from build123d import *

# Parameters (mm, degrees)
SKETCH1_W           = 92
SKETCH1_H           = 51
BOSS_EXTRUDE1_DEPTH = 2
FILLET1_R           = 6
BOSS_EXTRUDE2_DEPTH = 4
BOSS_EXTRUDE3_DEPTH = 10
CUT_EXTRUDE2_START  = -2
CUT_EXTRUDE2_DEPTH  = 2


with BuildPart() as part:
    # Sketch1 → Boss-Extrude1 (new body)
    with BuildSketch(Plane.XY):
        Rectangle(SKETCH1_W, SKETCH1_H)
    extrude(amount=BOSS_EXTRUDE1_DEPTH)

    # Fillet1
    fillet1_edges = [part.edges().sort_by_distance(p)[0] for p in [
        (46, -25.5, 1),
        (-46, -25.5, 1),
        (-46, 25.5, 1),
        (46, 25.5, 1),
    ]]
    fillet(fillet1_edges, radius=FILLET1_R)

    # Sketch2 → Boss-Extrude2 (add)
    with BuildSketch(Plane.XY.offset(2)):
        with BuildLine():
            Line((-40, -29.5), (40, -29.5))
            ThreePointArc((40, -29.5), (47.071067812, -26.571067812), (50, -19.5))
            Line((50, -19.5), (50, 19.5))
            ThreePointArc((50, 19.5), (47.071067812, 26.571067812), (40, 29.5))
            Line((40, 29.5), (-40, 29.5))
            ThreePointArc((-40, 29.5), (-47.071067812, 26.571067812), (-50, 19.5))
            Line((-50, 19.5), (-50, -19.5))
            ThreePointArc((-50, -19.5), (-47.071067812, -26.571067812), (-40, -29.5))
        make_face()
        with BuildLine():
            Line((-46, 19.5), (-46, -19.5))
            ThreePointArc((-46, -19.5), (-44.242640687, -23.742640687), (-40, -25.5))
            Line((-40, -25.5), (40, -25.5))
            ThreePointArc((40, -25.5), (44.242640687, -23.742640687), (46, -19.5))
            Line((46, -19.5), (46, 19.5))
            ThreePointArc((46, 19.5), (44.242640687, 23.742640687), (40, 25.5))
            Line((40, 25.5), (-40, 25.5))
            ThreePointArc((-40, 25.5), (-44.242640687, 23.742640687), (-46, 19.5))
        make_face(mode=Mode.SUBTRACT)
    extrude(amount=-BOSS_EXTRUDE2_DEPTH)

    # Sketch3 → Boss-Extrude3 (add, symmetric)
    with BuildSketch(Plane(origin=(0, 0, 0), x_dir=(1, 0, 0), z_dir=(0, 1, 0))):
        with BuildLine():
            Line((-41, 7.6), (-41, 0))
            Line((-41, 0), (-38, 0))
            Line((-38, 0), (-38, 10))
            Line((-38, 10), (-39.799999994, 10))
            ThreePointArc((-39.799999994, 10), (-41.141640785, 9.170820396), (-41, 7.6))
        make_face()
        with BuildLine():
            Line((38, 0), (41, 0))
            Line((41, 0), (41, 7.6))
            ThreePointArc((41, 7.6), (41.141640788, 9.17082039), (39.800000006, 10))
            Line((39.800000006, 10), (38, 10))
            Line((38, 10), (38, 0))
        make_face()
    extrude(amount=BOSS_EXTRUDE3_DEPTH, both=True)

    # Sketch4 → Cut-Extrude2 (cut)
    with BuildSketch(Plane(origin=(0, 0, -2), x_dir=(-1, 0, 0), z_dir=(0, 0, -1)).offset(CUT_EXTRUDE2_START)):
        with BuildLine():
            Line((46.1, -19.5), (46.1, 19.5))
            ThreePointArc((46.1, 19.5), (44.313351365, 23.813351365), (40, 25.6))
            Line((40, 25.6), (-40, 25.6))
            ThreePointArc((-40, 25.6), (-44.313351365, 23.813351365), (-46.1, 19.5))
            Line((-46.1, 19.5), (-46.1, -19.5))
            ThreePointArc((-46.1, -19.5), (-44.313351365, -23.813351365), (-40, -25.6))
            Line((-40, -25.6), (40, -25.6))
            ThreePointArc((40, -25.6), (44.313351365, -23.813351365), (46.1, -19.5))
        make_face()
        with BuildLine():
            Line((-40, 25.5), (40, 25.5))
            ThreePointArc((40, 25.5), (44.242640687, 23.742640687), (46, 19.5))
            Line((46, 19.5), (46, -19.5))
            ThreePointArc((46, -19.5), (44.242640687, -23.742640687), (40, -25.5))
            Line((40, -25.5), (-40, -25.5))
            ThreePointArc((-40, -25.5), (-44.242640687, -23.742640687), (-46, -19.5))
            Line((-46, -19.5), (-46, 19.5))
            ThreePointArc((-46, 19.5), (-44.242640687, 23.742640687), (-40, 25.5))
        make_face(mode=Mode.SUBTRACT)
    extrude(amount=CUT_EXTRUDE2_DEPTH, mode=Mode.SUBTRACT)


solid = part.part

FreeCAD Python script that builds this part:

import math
import FreeCAD as App
import Part
import Sketcher
from FreeCAD import Vector


def edges_at(feature, points):
    """Names of the edges that pass closest to the given points."""
    edges = feature.Shape.Edges
    near = lambda p: min(range(len(edges)), key=lambda i: edges[i].distToShape(Part.Vertex(*p))[0])
    return sorted({f"Edge{near(p) + 1}" for p in points})

doc = App.newDocument("Part")
body = doc.addObject("PartDesign::Body", "Body")

# Sketch on XY plane
sketch1 = body.newObject("Sketcher::SketchObject", "Sketch")
sketch1.AttachmentSupport = (doc.getObject("XY_Plane"), [""])
sketch1.MapMode = "FlatFace"
sketch1.addGeometry(Part.LineSegment(Vector(-46, 26, 0), Vector(-46, -26, 0)), False)
sketch1.addGeometry(Part.LineSegment(Vector(-46, -26, 0), Vector(46, -26, 0)), False)
sketch1.addGeometry(Part.LineSegment(Vector(46, -26, 0), Vector(46, 26, 0)), False)
sketch1.addGeometry(Part.LineSegment(Vector(46, 26, 0), Vector(-46, 26, 0)), False)
sketch1.addConstraint(Sketcher.Constraint("Coincident", 0, 2, 1, 1))
sketch1.addConstraint(Sketcher.Constraint("Coincident", 1, 2, 2, 1))
sketch1.addConstraint(Sketcher.Constraint("Coincident", 2, 2, 3, 1))
sketch1.addConstraint(Sketcher.Constraint("Coincident", 3, 2, 0, 1))
sketch1.addConstraint(Sketcher.Constraint("Vertical", 0))
sketch1.addConstraint(Sketcher.Constraint("Horizontal", 1))
sketch1.addConstraint(Sketcher.Constraint("Vertical", 2))
sketch1.addConstraint(Sketcher.Constraint("Horizontal", 3))
sketch1.addConstraint(Sketcher.Constraint("Symmetric", 0, 2, 2, 2, -1, 1))
sketch1.addConstraint(Sketcher.Constraint("DistanceX", 1, 1, 1, 2, 92.0))
sketch1.addConstraint(Sketcher.Constraint("DistanceY", 0, 2, 0, 1, 51.0))
pad1 = body.newObject("PartDesign::Pad", "Pad")
pad1.Profile = sketch1
pad1.Length = 2
doc.recompute()

fillet = body.newObject("PartDesign::Fillet", "Fillet")
fillet.Base = (pad1, edges_at(pad1, [
    (46, -25.5, 1),
    (-46, -25.5, 1),
    (-46, 25.5, 1),
    (46, 25.5, 1),
]))
fillet.Radius = 6

# Sketch on XY plane
sketch2 = body.newObject("Sketcher::SketchObject", "Sketch001")
sketch2.AttachmentSupport = (doc.getObject("XY_Plane"), [""])
sketch2.MapMode = "FlatFace"
sketch2.AttachmentOffset = App.Placement(Vector(0, 0, 2), App.Rotation())
sketch2.addGeometry(Part.LineSegment(Vector(-40, -30, 0), Vector(40, -30, 0)), False)
sketch2.addGeometry(Part.ArcOfCircle(Part.Circle(Vector(40, -20, 0), Vector(0, 0, 1), 10), math.radians(-90), math.radians(0)), False)
sketch2.addGeometry(Part.LineSegment(Vector(50, -20, 0), Vector(50, 20, 0)), False)
sketch2.addGeometry(Part.ArcOfCircle(Part.Circle(Vector(40, 20, 0), Vector(0, 0, 1), 10), math.radians(0), math.radians(90)), False)
sketch2.addGeometry(Part.LineSegment(Vector(40, 30, 0), Vector(-40, 30, 0)), False)
sketch2.addGeometry(Part.ArcOfCircle(Part.Circle(Vector(-40, 20, 0), Vector(0, 0, 1), 10), math.radians(90), math.radians(180)), False)
sketch2.addGeometry(Part.LineSegment(Vector(-50, 20, 0), Vector(-50, -20, 0)), False)
sketch2.addGeometry(Part.ArcOfCircle(Part.Circle(Vector(-40, -20, 0), Vector(0, 0, 1), 10), math.radians(180), math.radians(270)), False)
sketch2.addGeometry(Part.LineSegment(Vector(-46, -20, 0), Vector(-46, 20, 0)), False)
sketch2.addGeometry(Part.ArcOfCircle(Part.Circle(Vector(-40, 20, 0), Vector(0, 0, 1), 6), math.radians(90), math.radians(180)), False)
sketch2.addGeometry(Part.LineSegment(Vector(-40, 26, 0), Vector(40, 26, 0)), False)
sketch2.addGeometry(Part.ArcOfCircle(Part.Circle(Vector(40, 20, 0), Vector(0, 0, 1), 6), math.radians(0), math.radians(90)), False)
sketch2.addGeometry(Part.LineSegment(Vector(46, 20, 0), Vector(46, -20, 0)), False)
sketch2.addGeometry(Part.ArcOfCircle(Part.Circle(Vector(40, -20, 0), Vector(0, 0, 1), 6), math.radians(-90), math.radians(0)), False)
sketch2.addGeometry(Part.LineSegment(Vector(40, -26, 0), Vector(-40, -26, 0)), False)
sketch2.addGeometry(Part.ArcOfCircle(Part.Circle(Vector(-40, -20, 0), Vector(0, 0, 1), 6), math.radians(180), math.radians(270)), False)
sketch2.addConstraint(Sketcher.Constraint("Tangent", 0, 2, 1, 1))
sketch2.addConstraint(Sketcher.Constraint("Tangent", 1, 2, 2, 1))
sketch2.addConstraint(Sketcher.Constraint("Tangent", 2, 2, 3, 1))
sketch2.addConstraint(Sketcher.Constraint("Tangent", 3, 2, 4, 1))
sketch2.addConstraint(Sketcher.Constraint("Tangent", 4, 2, 5, 1))
sketch2.addConstraint(Sketcher.Constraint("Tangent", 5, 2, 6, 1))
sketch2.addConstraint(Sketcher.Constraint("Tangent", 6, 2, 7, 1))
sketch2.addConstraint(Sketcher.Constraint("Tangent", 7, 2, 0, 1))
sketch2.addConstraint(Sketcher.Constraint("Tangent", 8, 2, 9, 2))
sketch2.addConstraint(Sketcher.Constraint("Tangent", 9, 1, 10, 1))
sketch2.addConstraint(Sketcher.Constraint("Tangent", 10, 2, 11, 2))
sketch2.addConstraint(Sketcher.Constraint("Tangent", 11, 1, 12, 1))
sketch2.addConstraint(Sketcher.Constraint("Tangent", 12, 2, 13, 2))
sketch2.addConstraint(Sketcher.Constraint("Tangent", 13, 1, 14, 1))
sketch2.addConstraint(Sketcher.Constraint("Tangent", 14, 2, 15, 2))
sketch2.addConstraint(Sketcher.Constraint("Tangent", 15, 1, 8, 1))
sketch2.addConstraint(Sketcher.Constraint("Horizontal", 0))
sketch2.addConstraint(Sketcher.Constraint("Vertical", 2))
sketch2.addConstraint(Sketcher.Constraint("Horizontal", 4))
sketch2.addConstraint(Sketcher.Constraint("Vertical", 6))
sketch2.addConstraint(Sketcher.Constraint("Vertical", 8))
sketch2.addConstraint(Sketcher.Constraint("Horizontal", 10))
sketch2.addConstraint(Sketcher.Constraint("Vertical", 12))
sketch2.addConstraint(Sketcher.Constraint("Horizontal", 14))
sketch2.addConstraint(Sketcher.Constraint("Coincident", 9, 3, 5, 3))
sketch2.addConstraint(Sketcher.Constraint("Coincident", 11, 3, 3, 3))
sketch2.addConstraint(Sketcher.Constraint("Coincident", 13, 3, 1, 3))
sketch2.addConstraint(Sketcher.Constraint("Equal", 1, 3))
sketch2.addConstraint(Sketcher.Constraint("Equal", 3, 5))
sketch2.addConstraint(Sketcher.Constraint("Equal", 5, 7))
sketch2.addConstraint(Sketcher.Constraint("Equal", 13, 15))
sketch2.addConstraint(Sketcher.Constraint("Symmetric", 1, 3, 5, 3, -1, 1))
sketch2.addConstraint(Sketcher.Constraint("Radius", 1, 10.0))
sketch2.addConstraint(Sketcher.Constraint("Radius", 9, 6.0))
sketch2.addConstraint(Sketcher.Constraint("DistanceX", 0, 1, 0, 2, 80.0))
sketch2.addConstraint(Sketcher.Constraint("DistanceY", 2, 1, 2, 2, 39.0))
pad2 = body.newObject("PartDesign::Pad", "Pad001")
pad2.Profile = sketch2
pad2.Length = 4
pad2.Reversed = True

# Sketch on XZ plane
sketch3 = body.newObject("Sketcher::SketchObject", "Sketch002")
sketch3.AttachmentSupport = (doc.getObject("XZ_Plane"), [""])
sketch3.MapMode = "FlatFace"
sketch3.addGeometry(Part.LineSegment(Vector(-41, -7.6, 0), Vector(-41, 0, 0)), False)
sketch3.addGeometry(Part.LineSegment(Vector(-41, 0, 0), Vector(-38, 0, 0)), False)
sketch3.addGeometry(Part.LineSegment(Vector(-38, 0, 0), Vector(-38, -10, 0)), False)
sketch3.addGeometry(Part.LineSegment(Vector(-38, -10, 0), Vector(-39.8, -10, 0)), False)
sketch3.addGeometry(Part.ArcOfCircle(Part.Circle(Vector(-39.8, -8.5, 0), Vector(0, 0, 1), 1.5), math.radians(143), math.radians(270)), False)
sketch3.addGeometry(Part.LineSegment(Vector(38, 0, 0), Vector(41, 0, 0)), False)
sketch3.addGeometry(Part.LineSegment(Vector(41, 0, 0), Vector(41, -7.6, 0)), False)
sketch3.addGeometry(Part.ArcOfCircle(Part.Circle(Vector(39.8, -8.5, 0), Vector(0, 0, 1), 1.5), math.radians(-90), math.radians(37)), False)
sketch3.addGeometry(Part.LineSegment(Vector(39.8, -10, 0), Vector(38, -10, 0)), False)
sketch3.addGeometry(Part.LineSegment(Vector(38, -10, 0), Vector(38, 0, 0)), False)
sketch3.addConstraint(Sketcher.Constraint("Coincident", 0, 2, 1, 1))
sketch3.addConstraint(Sketcher.Constraint("Coincident", 1, 2, 2, 1))
sketch3.addConstraint(Sketcher.Constraint("Coincident", 2, 2, 3, 1))
sketch3.addConstraint(Sketcher.Constraint("Tangent", 3, 2, 4, 2))
sketch3.addConstraint(Sketcher.Constraint("Coincident", 4, 1, 0, 1))
sketch3.addConstraint(Sketcher.Constraint("Coincident", 5, 2, 6, 1))
sketch3.addConstraint(Sketcher.Constraint("Coincident", 6, 2, 7, 2))
sketch3.addConstraint(Sketcher.Constraint("Tangent", 7, 1, 8, 1))
sketch3.addConstraint(Sketcher.Constraint("Coincident", 8, 2, 9, 1))
sketch3.addConstraint(Sketcher.Constraint("Coincident", 9, 2, 5, 1))
sketch3.addConstraint(Sketcher.Constraint("Vertical", 0))
sketch3.addConstraint(Sketcher.Constraint("Horizontal", 1))
sketch3.addConstraint(Sketcher.Constraint("Vertical", 2))
sketch3.addConstraint(Sketcher.Constraint("Horizontal", 3))
sketch3.addConstraint(Sketcher.Constraint("Horizontal", 5))
sketch3.addConstraint(Sketcher.Constraint("Vertical", 6))
sketch3.addConstraint(Sketcher.Constraint("Horizontal", 8))
sketch3.addConstraint(Sketcher.Constraint("Vertical", 9))
sketch3.addConstraint(Sketcher.Constraint("Equal", 4, 7))
sketch3.addConstraint(Sketcher.Constraint("Symmetric", 0, 2, 5, 2, -1, 1))
sketch3.addConstraint(Sketcher.Constraint("Symmetric", 4, 3, 7, 3, -2))
sketch3.addConstraint(Sketcher.Constraint("Symmetric", 1, 2, 9, 2, -2))
sketch3.addConstraint(Sketcher.Constraint("Radius", 4, 1.5))
sketch3.addConstraint(Sketcher.Constraint("DistanceX", 1, 1, 1, 2, 3.0))
sketch3.addConstraint(Sketcher.Constraint("DistanceY", 2, 2, 2, 1, 10.0))
sketch3.addConstraint(Sketcher.Constraint("DistanceX", 3, 2, 3, 1, 1.8))
sketch3.addConstraint(Sketcher.Constraint("DistanceX", 0, 2, -1, 1, 41.0))
pad3 = body.newObject("PartDesign::Pad", "Pad002")
pad3.Profile = sketch3
pad3.Length = 20
pad3.Midplane = True

# Sketch on XY plane
sketch4 = body.newObject("Sketcher::SketchObject", "Sketch003")
sketch4.AttachmentSupport = (doc.getObject("XY_Plane"), [""])
sketch4.MapMode = "FlatFace"
sketch4.addGeometry(Part.LineSegment(Vector(-46, -20, 0), Vector(-46, 20, 0)), False)
sketch4.addGeometry(Part.ArcOfCircle(Part.Circle(Vector(-40, 19, 0), Vector(0, 0, 1), 6), math.radians(90), math.radians(180)), False)
sketch4.addGeometry(Part.LineSegment(Vector(-40, 26, 0), Vector(40, 26, 0)), False)
sketch4.addGeometry(Part.ArcOfCircle(Part.Circle(Vector(40, 19, 0), Vector(0, 0, 1), 6), math.radians(0), math.radians(90)), False)
sketch4.addGeometry(Part.LineSegment(Vector(46, 20, 0), Vector(46, -20, 0)), False)
sketch4.addGeometry(Part.ArcOfCircle(Part.Circle(Vector(40, -19, 0), Vector(0, 0, 1), 6), math.radians(-90), math.radians(0)), False)
sketch4.addGeometry(Part.LineSegment(Vector(40, -26, 0), Vector(-40, -26, 0)), False)
sketch4.addGeometry(Part.ArcOfCircle(Part.Circle(Vector(-40, -19, 0), Vector(0, 0, 1), 6), math.radians(-180), math.radians(-90)), False)
sketch4.addGeometry(Part.ArcOfCircle(Part.Circle(Vector(40, 20, 0), Vector(0, 0, 1), 6), math.radians(0), math.radians(90)), False)
sketch4.addGeometry(Part.LineSegment(Vector(40, 26, 0), Vector(-40, 26, 0)), False)
sketch4.addGeometry(Part.ArcOfCircle(Part.Circle(Vector(-40, 20, 0), Vector(0, 0, 1), 6), math.radians(90), math.radians(180)), False)
sketch4.addGeometry(Part.LineSegment(Vector(-46, 20, 0), Vector(-46, -20, 0)), False)
sketch4.addGeometry(Part.ArcOfCircle(Part.Circle(Vector(-40, -20, 0), Vector(0, 0, 1), 6), math.radians(180), math.radians(270)), False)
sketch4.addGeometry(Part.LineSegment(Vector(-40, -26, 0), Vector(40, -26, 0)), False)
sketch4.addGeometry(Part.ArcOfCircle(Part.Circle(Vector(40, -20, 0), Vector(0, 0, 1), 6), math.radians(-90), math.radians(0)), False)
sketch4.addGeometry(Part.LineSegment(Vector(46, -20, 0), Vector(46, 20, 0)), False)
sketch4.addConstraint(Sketcher.Constraint("Tangent", 0, 2, 1, 2))
sketch4.addConstraint(Sketcher.Constraint("Tangent", 1, 1, 2, 1))
sketch4.addConstraint(Sketcher.Constraint("Tangent", 2, 2, 3, 2))
sketch4.addConstraint(Sketcher.Constraint("Tangent", 3, 1, 4, 1))
sketch4.addConstraint(Sketcher.Constraint("Tangent", 4, 2, 5, 2))
sketch4.addConstraint(Sketcher.Constraint("Tangent", 5, 1, 6, 1))
sketch4.addConstraint(Sketcher.Constraint("Tangent", 6, 2, 7, 2))
sketch4.addConstraint(Sketcher.Constraint("Tangent", 7, 1, 0, 1))
sketch4.addConstraint(Sketcher.Constraint("Tangent", 8, 2, 9, 1))
sketch4.addConstraint(Sketcher.Constraint("Tangent", 9, 2, 10, 1))
sketch4.addConstraint(Sketcher.Constraint("Tangent", 10, 2, 11, 1))
sketch4.addConstraint(Sketcher.Constraint("Tangent", 11, 2, 12, 1))
sketch4.addConstraint(Sketcher.Constraint("Tangent", 12, 2, 13, 1))
sketch4.addConstraint(Sketcher.Constraint("Tangent", 13, 2, 14, 1))
sketch4.addConstraint(Sketcher.Constraint("Tangent", 14, 2, 15, 1))
sketch4.addConstraint(Sketcher.Constraint("Tangent", 15, 2, 8, 1))
sketch4.addConstraint(Sketcher.Constraint("Vertical", 0))
sketch4.addConstraint(Sketcher.Constraint("Horizontal", 2))
sketch4.addConstraint(Sketcher.Constraint("Vertical", 4))
sketch4.addConstraint(Sketcher.Constraint("Horizontal", 6))
sketch4.addConstraint(Sketcher.Constraint("Horizontal", 9))
sketch4.addConstraint(Sketcher.Constraint("Vertical", 11))
sketch4.addConstraint(Sketcher.Constraint("Horizontal", 13))
sketch4.addConstraint(Sketcher.Constraint("Vertical", 15))
sketch4.addConstraint(Sketcher.Constraint("Coincident", 8, 3, 3, 3))
sketch4.addConstraint(Sketcher.Constraint("Coincident", 10, 3, 1, 3))
sketch4.addConstraint(Sketcher.Constraint("Coincident", 12, 3, 7, 3))
sketch4.addConstraint(Sketcher.Constraint("Equal", 1, 3))
sketch4.addConstraint(Sketcher.Constraint("Equal", 3, 5))
sketch4.addConstraint(Sketcher.Constraint("Equal", 5, 7))
sketch4.addConstraint(Sketcher.Constraint("Equal", 12, 14))
sketch4.addConstraint(Sketcher.Constraint("Symmetric", 1, 3, 5, 3, -1, 1))
sketch4.addConstraint(Sketcher.Constraint("Radius", 8, 6.0))
sketch4.addConstraint(Sketcher.Constraint("Radius", 1, 6.1))
sketch4.addConstraint(Sketcher.Constraint("DistanceX", 2, 1, 2, 2, 80.0))
sketch4.addConstraint(Sketcher.Constraint("DistanceY", 0, 1, 0, 2, 39.0))
pocket1 = body.newObject("PartDesign::Pocket", "Pocket")
pocket1.Profile = sketch4
pocket1.Length = 2

doc.recompute()
